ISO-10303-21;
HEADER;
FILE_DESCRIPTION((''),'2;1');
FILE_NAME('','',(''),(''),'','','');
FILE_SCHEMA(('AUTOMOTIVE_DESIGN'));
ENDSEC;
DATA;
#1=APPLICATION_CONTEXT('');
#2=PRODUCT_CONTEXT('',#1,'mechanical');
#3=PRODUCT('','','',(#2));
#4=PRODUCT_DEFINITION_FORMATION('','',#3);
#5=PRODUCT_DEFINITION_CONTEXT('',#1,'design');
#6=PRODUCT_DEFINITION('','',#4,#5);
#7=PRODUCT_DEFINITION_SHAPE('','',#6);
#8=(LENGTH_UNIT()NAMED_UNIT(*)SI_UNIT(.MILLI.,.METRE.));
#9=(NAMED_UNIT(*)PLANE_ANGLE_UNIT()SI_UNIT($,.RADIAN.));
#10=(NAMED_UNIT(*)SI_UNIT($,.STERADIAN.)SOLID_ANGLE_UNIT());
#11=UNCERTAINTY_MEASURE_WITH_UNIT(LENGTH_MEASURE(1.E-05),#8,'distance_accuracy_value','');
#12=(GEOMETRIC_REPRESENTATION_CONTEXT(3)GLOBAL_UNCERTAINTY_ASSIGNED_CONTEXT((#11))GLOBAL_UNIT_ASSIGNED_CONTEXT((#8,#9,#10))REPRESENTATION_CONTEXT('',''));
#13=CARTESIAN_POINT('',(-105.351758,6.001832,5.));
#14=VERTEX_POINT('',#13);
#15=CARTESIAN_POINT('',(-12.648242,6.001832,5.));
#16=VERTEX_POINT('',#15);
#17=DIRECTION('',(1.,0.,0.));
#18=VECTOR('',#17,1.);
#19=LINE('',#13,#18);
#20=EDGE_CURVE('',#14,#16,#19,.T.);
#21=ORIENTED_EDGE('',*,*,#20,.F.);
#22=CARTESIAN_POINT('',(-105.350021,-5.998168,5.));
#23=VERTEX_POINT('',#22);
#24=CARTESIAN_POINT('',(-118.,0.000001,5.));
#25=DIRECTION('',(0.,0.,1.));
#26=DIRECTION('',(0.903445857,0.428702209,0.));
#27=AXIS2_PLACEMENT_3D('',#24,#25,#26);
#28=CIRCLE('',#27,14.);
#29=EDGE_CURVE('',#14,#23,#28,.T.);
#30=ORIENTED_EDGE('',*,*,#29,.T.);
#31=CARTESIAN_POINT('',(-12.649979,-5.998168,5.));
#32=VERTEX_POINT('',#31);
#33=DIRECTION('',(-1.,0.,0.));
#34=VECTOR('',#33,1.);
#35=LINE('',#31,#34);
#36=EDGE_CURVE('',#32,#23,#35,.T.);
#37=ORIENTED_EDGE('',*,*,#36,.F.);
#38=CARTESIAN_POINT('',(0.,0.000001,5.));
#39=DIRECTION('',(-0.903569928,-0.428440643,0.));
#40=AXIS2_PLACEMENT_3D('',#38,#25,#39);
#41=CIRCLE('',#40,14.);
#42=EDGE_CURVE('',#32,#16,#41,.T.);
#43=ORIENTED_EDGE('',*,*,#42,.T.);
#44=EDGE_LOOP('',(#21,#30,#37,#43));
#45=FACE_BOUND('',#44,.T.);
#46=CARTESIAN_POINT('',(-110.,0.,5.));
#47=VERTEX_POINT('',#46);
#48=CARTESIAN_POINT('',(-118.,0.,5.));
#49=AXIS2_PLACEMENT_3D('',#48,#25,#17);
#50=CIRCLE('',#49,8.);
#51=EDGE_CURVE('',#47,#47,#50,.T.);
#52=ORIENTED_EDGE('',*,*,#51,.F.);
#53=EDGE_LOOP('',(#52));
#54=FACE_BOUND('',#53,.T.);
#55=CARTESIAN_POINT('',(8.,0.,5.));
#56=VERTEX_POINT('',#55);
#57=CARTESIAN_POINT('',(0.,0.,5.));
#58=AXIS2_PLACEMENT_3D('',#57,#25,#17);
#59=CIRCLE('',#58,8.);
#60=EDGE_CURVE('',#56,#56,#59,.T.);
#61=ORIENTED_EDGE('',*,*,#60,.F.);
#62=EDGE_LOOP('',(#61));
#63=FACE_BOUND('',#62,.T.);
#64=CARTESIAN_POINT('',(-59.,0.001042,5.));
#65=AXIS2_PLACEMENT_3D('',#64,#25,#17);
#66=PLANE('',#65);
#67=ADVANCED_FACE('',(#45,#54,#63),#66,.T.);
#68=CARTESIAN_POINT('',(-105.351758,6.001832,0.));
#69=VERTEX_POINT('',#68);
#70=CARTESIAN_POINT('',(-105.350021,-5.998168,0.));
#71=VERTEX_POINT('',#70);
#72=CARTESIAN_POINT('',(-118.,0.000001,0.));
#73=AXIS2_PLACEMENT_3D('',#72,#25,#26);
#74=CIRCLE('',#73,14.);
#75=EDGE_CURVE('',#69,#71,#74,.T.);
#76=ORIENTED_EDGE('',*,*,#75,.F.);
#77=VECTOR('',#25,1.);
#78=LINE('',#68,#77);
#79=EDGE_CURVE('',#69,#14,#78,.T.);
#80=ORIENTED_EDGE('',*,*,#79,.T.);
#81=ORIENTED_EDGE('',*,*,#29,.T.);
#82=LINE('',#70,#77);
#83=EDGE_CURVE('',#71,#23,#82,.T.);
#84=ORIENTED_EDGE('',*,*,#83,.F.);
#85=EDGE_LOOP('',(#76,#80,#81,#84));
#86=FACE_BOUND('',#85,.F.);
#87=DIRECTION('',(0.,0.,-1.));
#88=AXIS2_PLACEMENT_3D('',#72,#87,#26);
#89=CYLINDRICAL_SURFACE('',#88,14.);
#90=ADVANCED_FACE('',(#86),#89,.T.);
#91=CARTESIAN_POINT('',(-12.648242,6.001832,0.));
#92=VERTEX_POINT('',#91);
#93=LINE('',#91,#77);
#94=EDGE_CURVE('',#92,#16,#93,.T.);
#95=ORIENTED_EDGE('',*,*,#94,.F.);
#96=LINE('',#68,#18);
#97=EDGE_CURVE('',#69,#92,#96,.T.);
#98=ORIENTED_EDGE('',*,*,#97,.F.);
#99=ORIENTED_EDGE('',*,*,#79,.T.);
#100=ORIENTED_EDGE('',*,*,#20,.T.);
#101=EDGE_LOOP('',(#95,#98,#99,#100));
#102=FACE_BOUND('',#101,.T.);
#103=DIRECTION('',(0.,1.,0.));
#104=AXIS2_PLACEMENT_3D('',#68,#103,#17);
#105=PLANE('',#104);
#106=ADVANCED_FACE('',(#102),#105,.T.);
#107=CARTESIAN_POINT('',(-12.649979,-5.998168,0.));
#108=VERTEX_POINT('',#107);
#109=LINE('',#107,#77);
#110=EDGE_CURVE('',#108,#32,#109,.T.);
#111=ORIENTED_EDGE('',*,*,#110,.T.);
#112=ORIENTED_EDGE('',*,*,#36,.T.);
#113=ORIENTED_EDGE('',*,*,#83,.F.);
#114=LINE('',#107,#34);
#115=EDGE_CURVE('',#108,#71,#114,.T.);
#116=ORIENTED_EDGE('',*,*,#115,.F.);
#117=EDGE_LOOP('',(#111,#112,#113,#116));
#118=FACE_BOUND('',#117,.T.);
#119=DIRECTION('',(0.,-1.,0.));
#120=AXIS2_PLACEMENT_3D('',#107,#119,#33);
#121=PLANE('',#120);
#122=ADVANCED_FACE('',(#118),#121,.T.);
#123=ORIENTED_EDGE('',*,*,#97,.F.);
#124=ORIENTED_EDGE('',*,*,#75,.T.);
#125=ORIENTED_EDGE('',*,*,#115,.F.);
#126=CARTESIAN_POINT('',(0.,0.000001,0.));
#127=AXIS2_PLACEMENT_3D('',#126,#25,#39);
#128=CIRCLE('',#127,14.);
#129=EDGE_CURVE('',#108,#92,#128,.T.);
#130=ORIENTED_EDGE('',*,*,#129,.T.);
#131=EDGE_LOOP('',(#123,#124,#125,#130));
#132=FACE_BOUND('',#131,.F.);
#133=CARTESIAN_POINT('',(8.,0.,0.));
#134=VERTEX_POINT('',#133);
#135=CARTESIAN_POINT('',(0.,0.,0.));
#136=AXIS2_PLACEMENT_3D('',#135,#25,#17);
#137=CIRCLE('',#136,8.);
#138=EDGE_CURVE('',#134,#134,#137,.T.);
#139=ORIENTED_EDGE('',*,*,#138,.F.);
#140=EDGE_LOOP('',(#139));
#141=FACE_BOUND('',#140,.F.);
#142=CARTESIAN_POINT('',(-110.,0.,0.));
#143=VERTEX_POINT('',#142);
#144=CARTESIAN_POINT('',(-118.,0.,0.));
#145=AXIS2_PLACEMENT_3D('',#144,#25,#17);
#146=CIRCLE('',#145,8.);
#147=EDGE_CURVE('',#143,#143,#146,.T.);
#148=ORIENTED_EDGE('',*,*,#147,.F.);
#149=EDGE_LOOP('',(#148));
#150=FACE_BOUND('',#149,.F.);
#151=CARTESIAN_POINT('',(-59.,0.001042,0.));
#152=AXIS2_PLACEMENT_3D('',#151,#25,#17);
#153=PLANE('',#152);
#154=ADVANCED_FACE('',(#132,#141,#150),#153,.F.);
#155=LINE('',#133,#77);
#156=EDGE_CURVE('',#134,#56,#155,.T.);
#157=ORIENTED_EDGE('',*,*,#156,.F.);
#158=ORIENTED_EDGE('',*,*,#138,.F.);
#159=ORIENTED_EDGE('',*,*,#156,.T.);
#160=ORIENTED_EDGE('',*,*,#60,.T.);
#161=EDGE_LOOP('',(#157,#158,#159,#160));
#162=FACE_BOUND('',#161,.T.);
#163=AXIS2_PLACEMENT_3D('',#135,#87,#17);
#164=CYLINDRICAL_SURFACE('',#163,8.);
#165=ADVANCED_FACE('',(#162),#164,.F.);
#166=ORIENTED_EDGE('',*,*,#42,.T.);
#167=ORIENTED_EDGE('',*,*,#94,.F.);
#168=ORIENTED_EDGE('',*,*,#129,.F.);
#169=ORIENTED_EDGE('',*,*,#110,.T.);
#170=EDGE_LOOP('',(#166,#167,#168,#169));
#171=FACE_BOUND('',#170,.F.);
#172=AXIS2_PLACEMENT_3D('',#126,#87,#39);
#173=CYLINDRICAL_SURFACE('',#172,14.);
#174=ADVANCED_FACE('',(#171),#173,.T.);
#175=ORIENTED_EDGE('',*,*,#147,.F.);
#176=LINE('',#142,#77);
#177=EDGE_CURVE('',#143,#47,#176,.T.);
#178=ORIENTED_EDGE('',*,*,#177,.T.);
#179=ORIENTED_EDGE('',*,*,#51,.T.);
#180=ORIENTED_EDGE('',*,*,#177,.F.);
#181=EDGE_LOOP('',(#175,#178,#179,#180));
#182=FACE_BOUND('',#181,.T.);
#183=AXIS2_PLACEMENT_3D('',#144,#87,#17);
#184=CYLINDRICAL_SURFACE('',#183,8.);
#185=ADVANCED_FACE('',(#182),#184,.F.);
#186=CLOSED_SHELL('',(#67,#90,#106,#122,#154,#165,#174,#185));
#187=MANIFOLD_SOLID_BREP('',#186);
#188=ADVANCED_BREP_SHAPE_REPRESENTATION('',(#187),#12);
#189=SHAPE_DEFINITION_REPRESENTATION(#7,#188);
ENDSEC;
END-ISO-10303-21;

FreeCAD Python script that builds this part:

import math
import FreeCAD as App
import Part
import Sketcher

doc = App.newDocument("Part")
body = doc.addObject("PartDesign::Body", "Body")

# Sketch on XY plane
sketch1 = body.newObject("Sketcher::SketchObject", "Sketch")
sketch1.AttachmentSupport = (doc.getObject("XY_Plane"), [""])
sketch1.MapMode = "FlatFace"
sketch1.addGeometry([
    Part.ArcOfCircle(Part.Circle(App.Vector(0, 0.000001, 0), App.Vector(0, 0, 1), 14), math.radians(-154.63136), math.radians(154.614773)),  # 0
    Part.LineSegment(App.Vector(-12.648242, 6.001832, 0), App.Vector(-105.351758, 6.001832, 0)),  # 1
    Part.ArcOfCircle(Part.Circle(App.Vector(-118, 0.000001, 0), App.Vector(0, 0, 1), 14), math.radians(25.385227), math.radians(334.63136)),  # 2
    Part.LineSegment(App.Vector(-105.350021, -5.998168, 0), App.Vector(-12.649979, -5.998168, 0)),  # 3
    Part.Circle(App.Vector(-118, 0, 0), App.Vector(0, 0, 1), 8),  # 4
    Part.Circle(App.Vector(0, 0, 0), App.Vector(0, 0, 1), 8),  # 5
], False)
sketch1.addConstraint([
    Sketcher.Constraint("Coincident", 0, 2, 1, 1),
    Sketcher.Constraint("Coincident", 1, 2, 2, 1),
    Sketcher.Constraint("Coincident", 2, 2, 3, 1),
    Sketcher.Constraint("Coincident", 3, 2, 0, 1),
    Sketcher.Constraint("Horizontal", 1),
    Sketcher.Constraint("Horizontal", 3),
    Sketcher.Constraint("Coincident", 0, 3, -1, 1),
    Sketcher.Constraint("Coincident", 5, 3, -1, 1),
    Sketcher.Constraint("Coincident", 4, 3, 2, 3),
    Sketcher.Constraint("Equal", 0, 2),
    Sketcher.Constraint("Equal", 4, 5),
    Sketcher.Constraint("PointOnObject", 2, 3, -1),
    Sketcher.Constraint("Diameter", 4, 16.0),
    Sketcher.Constraint("Radius", 0, 14.0),
    Sketcher.Constraint("DistanceX", 2, 3, -1, 1, 118.0),
    Sketcher.Constraint("DistanceY", 2, 2, 1, 2, 12.0),
    Sketcher.Constraint("DistanceX", 3, 1, 3, 2, 92.700042),
])
pad1 = body.newObject("PartDesign::Pad", "Pad")
pad1.Profile = sketch1
pad1.Length = 5

doc.recompute()
